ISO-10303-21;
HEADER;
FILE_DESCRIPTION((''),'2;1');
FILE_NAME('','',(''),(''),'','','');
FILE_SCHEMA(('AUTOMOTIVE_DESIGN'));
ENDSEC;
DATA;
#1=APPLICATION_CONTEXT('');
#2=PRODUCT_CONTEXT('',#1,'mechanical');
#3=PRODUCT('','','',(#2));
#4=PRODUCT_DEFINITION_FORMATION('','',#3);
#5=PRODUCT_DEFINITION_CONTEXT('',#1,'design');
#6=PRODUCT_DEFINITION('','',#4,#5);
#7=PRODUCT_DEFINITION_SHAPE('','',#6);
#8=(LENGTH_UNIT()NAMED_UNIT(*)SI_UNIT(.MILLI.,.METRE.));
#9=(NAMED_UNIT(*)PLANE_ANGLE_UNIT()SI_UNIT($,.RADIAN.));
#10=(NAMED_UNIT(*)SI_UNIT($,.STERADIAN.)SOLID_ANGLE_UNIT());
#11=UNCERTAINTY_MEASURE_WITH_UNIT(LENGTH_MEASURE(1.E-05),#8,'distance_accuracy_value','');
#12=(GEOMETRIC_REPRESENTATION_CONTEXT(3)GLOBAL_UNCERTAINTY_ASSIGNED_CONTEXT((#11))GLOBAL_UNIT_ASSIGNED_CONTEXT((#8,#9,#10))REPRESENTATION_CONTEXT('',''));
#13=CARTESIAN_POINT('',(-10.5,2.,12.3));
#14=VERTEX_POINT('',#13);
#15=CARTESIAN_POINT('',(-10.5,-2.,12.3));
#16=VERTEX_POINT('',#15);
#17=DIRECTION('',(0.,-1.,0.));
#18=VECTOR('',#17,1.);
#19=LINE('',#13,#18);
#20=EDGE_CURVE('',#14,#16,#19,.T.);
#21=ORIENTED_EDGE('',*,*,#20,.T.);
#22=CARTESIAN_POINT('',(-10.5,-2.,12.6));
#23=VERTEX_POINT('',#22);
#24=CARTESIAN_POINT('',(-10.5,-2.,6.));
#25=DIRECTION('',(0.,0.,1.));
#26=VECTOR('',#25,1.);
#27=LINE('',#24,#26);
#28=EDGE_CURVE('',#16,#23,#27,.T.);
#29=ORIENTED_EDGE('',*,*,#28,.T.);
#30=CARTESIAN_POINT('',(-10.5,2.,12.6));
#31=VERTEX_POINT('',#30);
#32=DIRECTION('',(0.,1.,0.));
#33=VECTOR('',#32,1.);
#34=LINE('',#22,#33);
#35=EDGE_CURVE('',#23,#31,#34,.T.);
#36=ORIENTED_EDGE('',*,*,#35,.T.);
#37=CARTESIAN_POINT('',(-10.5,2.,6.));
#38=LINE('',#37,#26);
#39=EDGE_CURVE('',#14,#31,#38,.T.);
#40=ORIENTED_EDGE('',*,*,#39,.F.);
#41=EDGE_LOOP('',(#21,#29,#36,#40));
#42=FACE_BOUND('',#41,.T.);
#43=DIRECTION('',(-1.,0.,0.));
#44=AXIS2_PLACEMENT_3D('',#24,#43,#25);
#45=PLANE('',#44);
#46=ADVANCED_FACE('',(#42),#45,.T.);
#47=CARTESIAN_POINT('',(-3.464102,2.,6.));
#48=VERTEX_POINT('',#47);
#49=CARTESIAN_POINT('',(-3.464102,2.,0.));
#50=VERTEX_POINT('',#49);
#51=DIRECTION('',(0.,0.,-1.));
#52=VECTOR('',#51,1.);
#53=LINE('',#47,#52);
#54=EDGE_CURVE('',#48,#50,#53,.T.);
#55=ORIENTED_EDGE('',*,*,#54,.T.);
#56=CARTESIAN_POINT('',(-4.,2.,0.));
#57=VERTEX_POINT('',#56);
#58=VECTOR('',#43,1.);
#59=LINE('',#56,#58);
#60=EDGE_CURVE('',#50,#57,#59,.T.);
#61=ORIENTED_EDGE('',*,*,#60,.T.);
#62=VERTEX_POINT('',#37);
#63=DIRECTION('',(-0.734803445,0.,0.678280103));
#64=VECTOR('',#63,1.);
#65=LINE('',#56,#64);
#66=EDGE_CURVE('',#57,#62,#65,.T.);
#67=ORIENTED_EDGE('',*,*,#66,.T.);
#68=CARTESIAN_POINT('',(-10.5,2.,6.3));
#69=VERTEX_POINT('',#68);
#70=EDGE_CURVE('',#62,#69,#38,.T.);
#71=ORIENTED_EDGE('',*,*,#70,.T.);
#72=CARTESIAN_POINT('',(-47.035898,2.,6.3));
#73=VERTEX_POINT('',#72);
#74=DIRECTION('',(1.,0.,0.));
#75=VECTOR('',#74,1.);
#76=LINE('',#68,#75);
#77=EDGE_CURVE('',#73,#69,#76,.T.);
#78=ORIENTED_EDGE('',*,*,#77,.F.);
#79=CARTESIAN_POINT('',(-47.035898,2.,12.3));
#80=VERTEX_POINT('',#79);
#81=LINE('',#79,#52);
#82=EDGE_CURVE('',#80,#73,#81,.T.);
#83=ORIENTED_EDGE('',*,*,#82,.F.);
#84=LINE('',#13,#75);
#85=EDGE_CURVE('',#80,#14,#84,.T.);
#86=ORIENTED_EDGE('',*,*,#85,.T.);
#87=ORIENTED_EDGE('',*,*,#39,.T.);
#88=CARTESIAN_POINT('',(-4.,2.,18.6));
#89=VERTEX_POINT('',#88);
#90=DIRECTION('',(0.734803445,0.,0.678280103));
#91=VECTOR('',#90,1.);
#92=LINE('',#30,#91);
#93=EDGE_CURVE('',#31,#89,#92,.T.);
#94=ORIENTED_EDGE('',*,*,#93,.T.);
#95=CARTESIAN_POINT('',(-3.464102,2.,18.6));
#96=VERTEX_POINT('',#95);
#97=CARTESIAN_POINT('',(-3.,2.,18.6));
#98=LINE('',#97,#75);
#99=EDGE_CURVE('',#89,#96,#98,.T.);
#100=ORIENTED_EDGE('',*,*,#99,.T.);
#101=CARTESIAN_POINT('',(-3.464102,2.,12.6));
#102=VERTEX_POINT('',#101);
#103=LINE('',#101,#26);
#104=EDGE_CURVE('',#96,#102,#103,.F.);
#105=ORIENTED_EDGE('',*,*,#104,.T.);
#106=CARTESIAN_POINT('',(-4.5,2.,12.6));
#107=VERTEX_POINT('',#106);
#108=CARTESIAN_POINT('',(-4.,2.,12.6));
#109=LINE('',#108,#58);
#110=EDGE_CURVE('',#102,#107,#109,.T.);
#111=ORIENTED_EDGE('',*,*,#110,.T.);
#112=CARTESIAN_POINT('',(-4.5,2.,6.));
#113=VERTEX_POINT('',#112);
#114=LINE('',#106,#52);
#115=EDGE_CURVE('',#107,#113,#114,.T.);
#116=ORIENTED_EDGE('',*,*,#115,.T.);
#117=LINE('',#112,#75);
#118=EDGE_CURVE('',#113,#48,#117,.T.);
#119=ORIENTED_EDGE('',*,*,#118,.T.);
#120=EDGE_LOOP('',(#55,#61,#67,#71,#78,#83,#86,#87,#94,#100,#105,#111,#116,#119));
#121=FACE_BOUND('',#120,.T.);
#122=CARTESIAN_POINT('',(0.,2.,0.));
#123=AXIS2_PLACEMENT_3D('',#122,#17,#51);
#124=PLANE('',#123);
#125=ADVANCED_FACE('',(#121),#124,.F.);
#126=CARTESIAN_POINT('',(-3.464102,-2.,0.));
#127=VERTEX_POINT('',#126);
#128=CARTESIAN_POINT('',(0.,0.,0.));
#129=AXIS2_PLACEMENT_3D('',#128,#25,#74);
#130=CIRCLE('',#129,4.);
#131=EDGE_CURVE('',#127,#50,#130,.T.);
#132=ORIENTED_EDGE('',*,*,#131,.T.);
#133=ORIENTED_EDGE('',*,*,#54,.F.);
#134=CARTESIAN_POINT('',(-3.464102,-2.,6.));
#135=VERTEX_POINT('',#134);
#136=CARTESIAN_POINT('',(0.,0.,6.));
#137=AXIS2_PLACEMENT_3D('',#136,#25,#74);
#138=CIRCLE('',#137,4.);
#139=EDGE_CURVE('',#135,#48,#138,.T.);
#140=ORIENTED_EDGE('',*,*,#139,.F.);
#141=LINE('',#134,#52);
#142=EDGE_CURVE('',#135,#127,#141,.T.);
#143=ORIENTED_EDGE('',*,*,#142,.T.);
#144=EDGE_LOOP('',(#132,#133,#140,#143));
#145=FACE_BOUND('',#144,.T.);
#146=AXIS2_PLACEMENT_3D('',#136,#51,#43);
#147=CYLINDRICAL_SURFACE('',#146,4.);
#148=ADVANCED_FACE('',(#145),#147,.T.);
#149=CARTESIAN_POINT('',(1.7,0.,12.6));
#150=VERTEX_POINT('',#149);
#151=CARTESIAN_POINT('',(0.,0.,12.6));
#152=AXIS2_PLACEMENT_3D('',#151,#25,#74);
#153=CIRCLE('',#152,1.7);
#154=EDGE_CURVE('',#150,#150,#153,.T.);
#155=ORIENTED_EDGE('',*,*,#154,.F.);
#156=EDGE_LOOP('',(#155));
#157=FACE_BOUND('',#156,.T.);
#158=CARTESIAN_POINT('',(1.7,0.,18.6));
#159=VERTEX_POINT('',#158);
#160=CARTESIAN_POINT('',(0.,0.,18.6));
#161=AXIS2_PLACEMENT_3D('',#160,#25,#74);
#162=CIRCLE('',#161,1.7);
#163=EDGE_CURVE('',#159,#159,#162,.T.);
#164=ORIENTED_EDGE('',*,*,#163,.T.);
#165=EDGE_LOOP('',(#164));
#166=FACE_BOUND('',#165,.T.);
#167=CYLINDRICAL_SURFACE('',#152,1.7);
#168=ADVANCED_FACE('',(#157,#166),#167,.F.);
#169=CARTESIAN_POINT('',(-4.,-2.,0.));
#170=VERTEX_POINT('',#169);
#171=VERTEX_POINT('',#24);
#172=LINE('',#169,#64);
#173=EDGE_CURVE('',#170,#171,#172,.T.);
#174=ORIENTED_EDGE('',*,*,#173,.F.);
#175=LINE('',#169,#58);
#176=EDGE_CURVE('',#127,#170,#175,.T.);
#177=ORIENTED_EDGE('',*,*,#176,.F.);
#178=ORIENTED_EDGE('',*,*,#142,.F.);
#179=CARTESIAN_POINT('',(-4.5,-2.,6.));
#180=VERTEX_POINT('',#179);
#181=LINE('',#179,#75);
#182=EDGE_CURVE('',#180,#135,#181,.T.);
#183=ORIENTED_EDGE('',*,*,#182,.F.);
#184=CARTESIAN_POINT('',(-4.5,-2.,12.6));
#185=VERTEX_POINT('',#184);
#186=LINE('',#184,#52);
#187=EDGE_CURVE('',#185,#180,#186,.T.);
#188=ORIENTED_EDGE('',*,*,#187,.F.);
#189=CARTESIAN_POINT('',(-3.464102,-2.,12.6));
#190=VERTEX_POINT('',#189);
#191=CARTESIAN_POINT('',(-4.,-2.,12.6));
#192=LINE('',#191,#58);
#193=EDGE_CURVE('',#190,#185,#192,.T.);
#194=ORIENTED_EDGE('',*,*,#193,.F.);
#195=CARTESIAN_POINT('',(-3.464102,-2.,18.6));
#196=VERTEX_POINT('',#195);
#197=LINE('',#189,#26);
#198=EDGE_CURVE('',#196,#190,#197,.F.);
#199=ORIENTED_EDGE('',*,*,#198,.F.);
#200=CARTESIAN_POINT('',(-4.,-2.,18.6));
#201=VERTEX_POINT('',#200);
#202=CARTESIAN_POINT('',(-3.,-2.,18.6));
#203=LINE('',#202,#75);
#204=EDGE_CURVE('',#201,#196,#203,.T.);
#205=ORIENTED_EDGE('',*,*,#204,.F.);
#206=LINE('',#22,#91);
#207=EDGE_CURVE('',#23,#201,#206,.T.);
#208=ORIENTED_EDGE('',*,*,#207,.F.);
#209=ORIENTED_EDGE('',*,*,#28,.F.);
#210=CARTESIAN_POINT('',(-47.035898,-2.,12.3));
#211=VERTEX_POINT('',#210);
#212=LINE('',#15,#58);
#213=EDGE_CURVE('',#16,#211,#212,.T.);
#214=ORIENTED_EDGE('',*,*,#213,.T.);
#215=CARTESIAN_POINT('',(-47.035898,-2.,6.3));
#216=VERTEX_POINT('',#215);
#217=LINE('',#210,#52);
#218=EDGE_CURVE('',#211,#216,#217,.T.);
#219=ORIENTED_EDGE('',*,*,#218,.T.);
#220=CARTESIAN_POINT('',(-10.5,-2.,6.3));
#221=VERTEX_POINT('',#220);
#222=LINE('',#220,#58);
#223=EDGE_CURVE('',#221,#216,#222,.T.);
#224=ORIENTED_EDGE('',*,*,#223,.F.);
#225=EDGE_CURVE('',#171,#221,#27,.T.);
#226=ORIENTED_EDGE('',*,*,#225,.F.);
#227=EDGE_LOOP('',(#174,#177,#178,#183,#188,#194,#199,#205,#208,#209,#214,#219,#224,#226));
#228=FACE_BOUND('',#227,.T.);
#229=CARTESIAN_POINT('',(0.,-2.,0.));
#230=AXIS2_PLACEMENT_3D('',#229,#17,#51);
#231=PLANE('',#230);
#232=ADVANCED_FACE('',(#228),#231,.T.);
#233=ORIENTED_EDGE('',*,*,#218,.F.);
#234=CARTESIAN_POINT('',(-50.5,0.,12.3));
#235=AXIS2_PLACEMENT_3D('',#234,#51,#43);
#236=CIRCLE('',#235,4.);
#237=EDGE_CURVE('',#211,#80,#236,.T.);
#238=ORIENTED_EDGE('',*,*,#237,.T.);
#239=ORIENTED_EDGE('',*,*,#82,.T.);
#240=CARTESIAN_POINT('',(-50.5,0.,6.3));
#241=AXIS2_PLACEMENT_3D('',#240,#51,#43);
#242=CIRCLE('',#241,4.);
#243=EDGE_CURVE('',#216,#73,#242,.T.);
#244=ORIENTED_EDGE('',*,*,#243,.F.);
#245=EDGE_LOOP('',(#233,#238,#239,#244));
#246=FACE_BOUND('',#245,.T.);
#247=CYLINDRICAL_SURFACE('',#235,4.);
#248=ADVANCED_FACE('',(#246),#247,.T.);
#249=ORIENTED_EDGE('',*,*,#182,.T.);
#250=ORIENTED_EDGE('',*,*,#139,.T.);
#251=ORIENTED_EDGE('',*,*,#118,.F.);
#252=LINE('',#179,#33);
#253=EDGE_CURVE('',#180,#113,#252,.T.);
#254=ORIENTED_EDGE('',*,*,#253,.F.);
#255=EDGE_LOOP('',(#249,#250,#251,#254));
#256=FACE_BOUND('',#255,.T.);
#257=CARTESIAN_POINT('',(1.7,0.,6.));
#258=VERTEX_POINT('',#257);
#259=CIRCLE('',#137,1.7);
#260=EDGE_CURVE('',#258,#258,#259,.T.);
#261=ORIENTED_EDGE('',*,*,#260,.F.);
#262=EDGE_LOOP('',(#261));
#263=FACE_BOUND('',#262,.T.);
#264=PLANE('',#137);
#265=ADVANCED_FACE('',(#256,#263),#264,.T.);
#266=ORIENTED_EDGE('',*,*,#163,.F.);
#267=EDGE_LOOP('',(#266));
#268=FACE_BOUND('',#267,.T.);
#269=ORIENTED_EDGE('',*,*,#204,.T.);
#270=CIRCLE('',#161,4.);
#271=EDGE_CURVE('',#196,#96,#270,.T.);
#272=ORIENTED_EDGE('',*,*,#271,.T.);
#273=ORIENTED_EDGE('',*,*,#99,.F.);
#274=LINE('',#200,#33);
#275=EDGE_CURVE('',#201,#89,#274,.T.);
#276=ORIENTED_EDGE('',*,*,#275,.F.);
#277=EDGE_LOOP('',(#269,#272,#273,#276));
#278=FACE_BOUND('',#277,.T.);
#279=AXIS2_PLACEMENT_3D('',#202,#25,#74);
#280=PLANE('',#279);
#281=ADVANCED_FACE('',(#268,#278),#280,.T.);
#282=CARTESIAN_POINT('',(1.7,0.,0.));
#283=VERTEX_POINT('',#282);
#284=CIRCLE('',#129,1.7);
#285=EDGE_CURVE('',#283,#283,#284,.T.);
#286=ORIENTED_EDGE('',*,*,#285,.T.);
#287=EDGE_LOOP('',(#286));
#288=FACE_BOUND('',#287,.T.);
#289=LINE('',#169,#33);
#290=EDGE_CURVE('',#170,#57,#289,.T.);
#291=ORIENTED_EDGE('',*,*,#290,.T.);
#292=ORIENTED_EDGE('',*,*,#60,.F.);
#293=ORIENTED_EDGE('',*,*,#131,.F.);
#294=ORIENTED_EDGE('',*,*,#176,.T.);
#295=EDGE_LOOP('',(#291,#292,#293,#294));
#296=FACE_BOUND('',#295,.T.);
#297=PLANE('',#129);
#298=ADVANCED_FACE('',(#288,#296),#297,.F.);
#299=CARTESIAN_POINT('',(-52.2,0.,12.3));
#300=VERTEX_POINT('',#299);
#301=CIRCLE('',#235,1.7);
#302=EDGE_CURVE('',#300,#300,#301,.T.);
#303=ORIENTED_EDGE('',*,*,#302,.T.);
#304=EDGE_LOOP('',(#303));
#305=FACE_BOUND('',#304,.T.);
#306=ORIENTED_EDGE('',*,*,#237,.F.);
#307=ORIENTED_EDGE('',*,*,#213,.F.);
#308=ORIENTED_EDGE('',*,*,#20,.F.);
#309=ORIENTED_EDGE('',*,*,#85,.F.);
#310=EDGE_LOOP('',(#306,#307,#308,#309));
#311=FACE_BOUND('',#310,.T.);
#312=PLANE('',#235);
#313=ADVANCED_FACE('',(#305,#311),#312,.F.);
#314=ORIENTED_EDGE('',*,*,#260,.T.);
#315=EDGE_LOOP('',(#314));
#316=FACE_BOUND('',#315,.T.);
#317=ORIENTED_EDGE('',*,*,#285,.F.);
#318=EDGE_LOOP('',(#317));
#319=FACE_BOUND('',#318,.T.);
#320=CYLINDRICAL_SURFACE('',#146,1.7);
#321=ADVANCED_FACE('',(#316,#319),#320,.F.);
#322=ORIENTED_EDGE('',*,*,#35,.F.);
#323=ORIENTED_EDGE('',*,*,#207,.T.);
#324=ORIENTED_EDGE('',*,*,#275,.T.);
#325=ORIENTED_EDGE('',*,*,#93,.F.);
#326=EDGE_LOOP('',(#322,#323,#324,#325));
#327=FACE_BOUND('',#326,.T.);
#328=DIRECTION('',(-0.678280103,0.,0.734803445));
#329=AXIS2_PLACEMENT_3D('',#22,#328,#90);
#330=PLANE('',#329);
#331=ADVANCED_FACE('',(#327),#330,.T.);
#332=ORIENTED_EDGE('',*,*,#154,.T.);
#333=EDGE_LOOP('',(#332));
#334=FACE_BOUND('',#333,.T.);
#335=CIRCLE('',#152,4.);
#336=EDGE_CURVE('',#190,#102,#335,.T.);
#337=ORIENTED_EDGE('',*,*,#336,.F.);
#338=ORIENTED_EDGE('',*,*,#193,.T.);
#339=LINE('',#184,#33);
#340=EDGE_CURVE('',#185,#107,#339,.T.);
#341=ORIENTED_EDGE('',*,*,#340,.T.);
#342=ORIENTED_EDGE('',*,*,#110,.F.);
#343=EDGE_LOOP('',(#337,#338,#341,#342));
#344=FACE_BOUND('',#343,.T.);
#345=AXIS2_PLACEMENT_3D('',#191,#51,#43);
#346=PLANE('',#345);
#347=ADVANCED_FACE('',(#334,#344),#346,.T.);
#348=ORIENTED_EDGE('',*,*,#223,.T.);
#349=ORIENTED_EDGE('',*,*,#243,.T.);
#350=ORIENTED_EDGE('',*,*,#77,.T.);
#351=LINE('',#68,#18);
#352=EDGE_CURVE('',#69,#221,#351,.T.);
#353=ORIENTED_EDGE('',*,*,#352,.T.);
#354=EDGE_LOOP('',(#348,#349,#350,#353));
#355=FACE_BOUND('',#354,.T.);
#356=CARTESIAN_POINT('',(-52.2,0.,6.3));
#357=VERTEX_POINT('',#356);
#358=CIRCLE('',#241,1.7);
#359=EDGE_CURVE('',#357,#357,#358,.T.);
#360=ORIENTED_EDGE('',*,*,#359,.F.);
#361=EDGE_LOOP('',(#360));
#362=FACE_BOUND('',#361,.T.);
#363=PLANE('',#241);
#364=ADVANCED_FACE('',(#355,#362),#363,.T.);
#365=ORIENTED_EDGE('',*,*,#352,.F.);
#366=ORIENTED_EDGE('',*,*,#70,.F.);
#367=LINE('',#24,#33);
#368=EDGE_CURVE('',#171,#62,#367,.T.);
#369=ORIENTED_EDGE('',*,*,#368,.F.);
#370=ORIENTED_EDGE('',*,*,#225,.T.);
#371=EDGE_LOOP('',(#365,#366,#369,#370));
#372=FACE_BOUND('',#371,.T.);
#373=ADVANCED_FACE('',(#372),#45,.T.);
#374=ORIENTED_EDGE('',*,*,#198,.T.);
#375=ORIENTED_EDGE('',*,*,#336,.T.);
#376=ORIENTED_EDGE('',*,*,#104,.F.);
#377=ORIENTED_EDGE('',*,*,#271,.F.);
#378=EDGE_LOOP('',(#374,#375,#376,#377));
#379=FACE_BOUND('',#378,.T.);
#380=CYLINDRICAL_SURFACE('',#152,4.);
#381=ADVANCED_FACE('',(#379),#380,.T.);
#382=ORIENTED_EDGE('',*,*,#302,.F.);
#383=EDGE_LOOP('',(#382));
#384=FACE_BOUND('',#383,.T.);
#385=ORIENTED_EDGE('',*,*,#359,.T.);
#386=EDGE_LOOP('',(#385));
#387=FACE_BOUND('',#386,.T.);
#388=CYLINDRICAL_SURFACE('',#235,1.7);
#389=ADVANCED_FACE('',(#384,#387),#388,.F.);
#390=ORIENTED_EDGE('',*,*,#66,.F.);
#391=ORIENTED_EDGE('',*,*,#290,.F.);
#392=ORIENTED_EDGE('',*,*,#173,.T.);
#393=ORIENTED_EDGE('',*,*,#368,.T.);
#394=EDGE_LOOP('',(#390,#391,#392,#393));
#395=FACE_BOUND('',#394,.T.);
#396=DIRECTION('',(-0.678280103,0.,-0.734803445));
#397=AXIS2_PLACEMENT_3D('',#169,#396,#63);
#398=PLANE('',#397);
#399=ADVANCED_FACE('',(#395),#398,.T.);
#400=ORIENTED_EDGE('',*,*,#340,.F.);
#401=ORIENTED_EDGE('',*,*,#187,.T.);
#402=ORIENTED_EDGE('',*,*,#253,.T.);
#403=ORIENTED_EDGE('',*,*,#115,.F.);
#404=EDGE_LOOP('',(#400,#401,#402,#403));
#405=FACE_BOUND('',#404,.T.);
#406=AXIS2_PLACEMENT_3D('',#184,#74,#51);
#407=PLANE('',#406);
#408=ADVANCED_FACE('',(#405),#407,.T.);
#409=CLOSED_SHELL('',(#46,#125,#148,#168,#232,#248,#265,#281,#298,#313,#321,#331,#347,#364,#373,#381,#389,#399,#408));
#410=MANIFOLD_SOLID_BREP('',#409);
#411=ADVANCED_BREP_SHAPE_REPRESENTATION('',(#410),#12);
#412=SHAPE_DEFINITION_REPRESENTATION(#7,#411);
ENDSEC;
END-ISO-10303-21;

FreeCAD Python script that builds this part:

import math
import FreeCAD as App
import Part
import Sketcher
Q = App.Units.Quantity

doc = App.newDocument("Part")
body = doc.addObject("PartDesign::Body", "Body")

# Sketch on XY plane
sketch1 = body.newObject("Sketcher::SketchObject", "Sketch")
sketch1.AttachmentSupport = (doc.getObject("XY_Plane"), [""])
sketch1.MapMode = "FlatFace"
sketch1.addGeometry(Part.Circle(App.Vector(0, 0, 0), App.Vector(0, 0, 1), 4), False)
sketch1.addGeometry(Part.Circle(App.Vector(0, 0, 0), App.Vector(0, 0, 1), 1.7), False)
sketch1.addConstraint(Sketcher.Constraint("Coincident", 0, 3, -1, 1))
sketch1.addConstraint(Sketcher.Constraint("Coincident", 1, 3, -1, 1))
sketch1.addConstraint(Sketcher.Constraint("Diameter", 0, Q("8 mm")))
sketch1.addConstraint(Sketcher.Constraint("Diameter", 1, Q("3.4 mm")))
pad1 = body.newObject("PartDesign::Pad", "Pad")
pad1.Profile = sketch1
pad1.Length = 6

# Sketch on XZ plane
sketch2 = body.newObject("Sketcher::SketchObject", "Sketch001")
sketch2.AttachmentSupport = (doc.getObject("XZ_Plane"), [""])
sketch2.MapMode = "FlatFace"
sketch2.addGeometry(Part.LineSegment(App.Vector(-4, 0, 0), App.Vector(-10.5, 6, 0)), False)
sketch2.addGeometry(Part.LineSegment(App.Vector(-10.5, 6, 0), App.Vector(-10.5, 12.6, 0)), False)
sketch2.addGeometry(Part.LineSegment(App.Vector(-10.5, 12.6, 0), App.Vector(-4, 18.6, 0)), False)
sketch2.addGeometry(Part.LineSegment(App.Vector(-4, 18.6, 0), App.Vector(-3, 18.6, 0)), False)
sketch2.addGeometry(Part.LineSegment(App.Vector(-3, 18.6, 0), App.Vector(-3, 12.6, 0)), False)
sketch2.addGeometry(Part.LineSegment(App.Vector(-3, 12.6, 0), App.Vector(-4.5, 12.6, 0)), False)
sketch2.addGeometry(Part.LineSegment(App.Vector(-4.5, 12.6, 0), App.Vector(-4.5, 6, 0)), False)
sketch2.addGeometry(Part.LineSegment(App.Vector(-4.5, 6, 0), App.Vector(-3, 6, 0)), False)
sketch2.addGeometry(Part.LineSegment(App.Vector(-3, 6, 0), App.Vector(-3, 0, 0)), False)
sketch2.addGeometry(Part.LineSegment(App.Vector(-3, 0, 0), App.Vector(-4, 0, 0)), False)
sketch2.addConstraint(Sketcher.Constraint("Coincident", 0, 2, 1, 1))
sketch2.addConstraint(Sketcher.Constraint("Coincident", 1, 2, 2, 1))
sketch2.addConstraint(Sketcher.Constraint("Coincident", 2, 2, 3, 1))
sketch2.addConstraint(Sketcher.Constraint("Coincident", 3, 2, 4, 1))
sketch2.addConstraint(Sketcher.Constraint("Coincident", 4, 2, 5, 1))
sketch2.addConstraint(Sketcher.Constraint("Coincident", 5, 2, 6, 1))
sketch2.addConstraint(Sketcher.Constraint("Coincident", 6, 2, 7, 1))
sketch2.addConstraint(Sketcher.Constraint("Coincident", 7, 2, 8, 1))
sketch2.addConstraint(Sketcher.Constraint("Coincident", 8, 2, 9, 1))
sketch2.addConstraint(Sketcher.Constraint("Coincident", 9, 2, 0, 1))
sketch2.addConstraint(Sketcher.Constraint("Vertical", 1))
sketch2.addConstraint(Sketcher.Constraint("Horizontal", 3))
sketch2.addConstraint(Sketcher.Constraint("Vertical", 4))
sketch2.addConstraint(Sketcher.Constraint("Horizontal", 5))
sketch2.addConstraint(Sketcher.Constraint("Vertical", 6))
sketch2.addConstraint(Sketcher.Constraint("Horizontal", 7))
sketch2.addConstraint(Sketcher.Constraint("Vertical", 8))
sketch2.addConstraint(Sketcher.Constraint("Horizontal", 9))
sketch2.addConstraint(Sketcher.Constraint("PointOnObject", 8, 2, -1))
sketch2.addConstraint(Sketcher.Constraint("Horizontal", 1, 2, 4, 2))
sketch2.addConstraint(Sketcher.Constraint("Horizontal", 0, 2, 6, 2))
sketch2.addConstraint(Sketcher.Constraint("Vertical", 4, 2, 7, 2))
sketch2.addConstraint(Sketcher.Constraint("Vertical", 2, 2, 9, 2))
sketch2.addConstraint(Sketcher.Constraint("Equal", 4, 8))
sketch2.addConstraint(Sketcher.Constraint("DistanceX", 3, 1, 3, 2, Q("1 mm")))
sketch2.addConstraint(Sketcher.Constraint("DistanceY", 4, 2, 4, 1, Q("6 mm")))
sketch2.addConstraint(Sketcher.Constraint("DistanceX", 5, 2, 5, 1, Q("1.5 mm")))
sketch2.addConstraint(Sketcher.Constraint("DistanceY", 1, 1, 1, 2, Q("6.6 mm")))
sketch2.addConstraint(Sketcher.Constraint("DistanceX", 2, 2, -1, 1, Q("4 mm")))
sketch2.addConstraint(Sketcher.Constraint("DistanceX", 1, 2, 5, 2, Q("6 mm")))
pad2 = body.newObject("PartDesign::Pad", "Pad001")
pad2.Profile = sketch2
pad2.Type = "TwoLengths"
pad2.Length = 2
pad2.Length2 = 2
pad2.Reversed = True
doc.recompute()

datumplane = body.newObject("PartDesign::Plane", "DatumPlane")
datumplane.AttachmentSupport = (doc.getObject("XY_Plane"), [""])
datumplane.MapMode = "FlatFace"
datumplane.AttachmentOffset = App.Placement(App.Vector(0, 0, 9.3), App.Rotation())
mirrored = body.newObject("PartDesign::Mirrored", "Mirrored")
mirrored.Originals = [pad1]
mirrored.MirrorPlane = (datumplane, [""])
body.Tip = mirrored

# Sketch on XY plane
sketch3 = body.newObject("Sketcher::SketchObject", "Sketch002")
sketch3.AttachmentSupport = (doc.getObject("XY_Plane"), [""])
sketch3.MapMode = "FlatFace"
sketch3.AttachmentOffset = App.Placement(App.Vector(0, 0, 9.3), App.Rotation())
sketch3.addGeometry(Part.LineSegment(App.Vector(-47, 2, 0), App.Vector(-10.5, 2, 0)), False)
sketch3.addGeometry(Part.LineSegment(App.Vector(-10.5, 2, 0), App.Vector(-10.5, -2, 0)), False)
sketch3.addGeometry(Part.LineSegment(App.Vector(-10.5, -2, 0), App.Vector(-47, -2, 0)), False)
sketch3.addGeometry(Part.ArcOfCircle(Part.Circle(App.Vector(-50.5, 0, 0), App.Vector(0, 0, 1), 4), math.radians(30), math.radians(330)), False)
sketch3.addGeometry(Part.Circle(App.Vector(-50.5, 0, 0), App.Vector(0, 0, 1), 1.7), False)
sketch3.addConstraint(Sketcher.Constraint("Coincident", 0, 2, 1, 1))
sketch3.addConstraint(Sketcher.Constraint("Coincident", 1, 2, 2, 1))
sketch3.addConstraint(Sketcher.Constraint("Coincident", 2, 2, 3, 2))
sketch3.addConstraint(Sketcher.Constraint("Coincident", 3, 1, 0, 1))
sketch3.addConstraint(Sketcher.Constraint("Horizontal", 0))
sketch3.addConstraint(Sketcher.Constraint("Vertical", 1))
sketch3.addConstraint(Sketcher.Constraint("Horizontal", 2))
sketch3.addConstraint(Sketcher.Constraint("Coincident", 4, 3, 3, 3))
sketch3.addConstraint(Sketcher.Constraint("Symmetric", 2, 2, 3, 1, -1))
sketch3.addConstraint(Sketcher.Constraint("Radius", 3, Q("4 mm")))
sketch3.addConstraint(Sketcher.Constraint("Diameter", 4, Q("3.4 mm")))
sketch3.addConstraint(Sketcher.Constraint("DistanceY", 1, 2, 1, 1, Q("4 mm")))
sketch3.addConstraint(Sketcher.Constraint("DistanceX", 3, 3, 0, 2, Q("40 mm")))
sketch3.addConstraint(Sketcher.Constraint("DistanceX", 3, 3, -1, 1, Q("50.5 mm")))
pad3 = body.newObject("PartDesign::Pad", "Pad002")
pad3.Profile = sketch3
pad3.Type = "TwoLengths"
pad3.Length = 3
pad3.Length2 = 3
pad3.Reversed = True

doc.recompute()
